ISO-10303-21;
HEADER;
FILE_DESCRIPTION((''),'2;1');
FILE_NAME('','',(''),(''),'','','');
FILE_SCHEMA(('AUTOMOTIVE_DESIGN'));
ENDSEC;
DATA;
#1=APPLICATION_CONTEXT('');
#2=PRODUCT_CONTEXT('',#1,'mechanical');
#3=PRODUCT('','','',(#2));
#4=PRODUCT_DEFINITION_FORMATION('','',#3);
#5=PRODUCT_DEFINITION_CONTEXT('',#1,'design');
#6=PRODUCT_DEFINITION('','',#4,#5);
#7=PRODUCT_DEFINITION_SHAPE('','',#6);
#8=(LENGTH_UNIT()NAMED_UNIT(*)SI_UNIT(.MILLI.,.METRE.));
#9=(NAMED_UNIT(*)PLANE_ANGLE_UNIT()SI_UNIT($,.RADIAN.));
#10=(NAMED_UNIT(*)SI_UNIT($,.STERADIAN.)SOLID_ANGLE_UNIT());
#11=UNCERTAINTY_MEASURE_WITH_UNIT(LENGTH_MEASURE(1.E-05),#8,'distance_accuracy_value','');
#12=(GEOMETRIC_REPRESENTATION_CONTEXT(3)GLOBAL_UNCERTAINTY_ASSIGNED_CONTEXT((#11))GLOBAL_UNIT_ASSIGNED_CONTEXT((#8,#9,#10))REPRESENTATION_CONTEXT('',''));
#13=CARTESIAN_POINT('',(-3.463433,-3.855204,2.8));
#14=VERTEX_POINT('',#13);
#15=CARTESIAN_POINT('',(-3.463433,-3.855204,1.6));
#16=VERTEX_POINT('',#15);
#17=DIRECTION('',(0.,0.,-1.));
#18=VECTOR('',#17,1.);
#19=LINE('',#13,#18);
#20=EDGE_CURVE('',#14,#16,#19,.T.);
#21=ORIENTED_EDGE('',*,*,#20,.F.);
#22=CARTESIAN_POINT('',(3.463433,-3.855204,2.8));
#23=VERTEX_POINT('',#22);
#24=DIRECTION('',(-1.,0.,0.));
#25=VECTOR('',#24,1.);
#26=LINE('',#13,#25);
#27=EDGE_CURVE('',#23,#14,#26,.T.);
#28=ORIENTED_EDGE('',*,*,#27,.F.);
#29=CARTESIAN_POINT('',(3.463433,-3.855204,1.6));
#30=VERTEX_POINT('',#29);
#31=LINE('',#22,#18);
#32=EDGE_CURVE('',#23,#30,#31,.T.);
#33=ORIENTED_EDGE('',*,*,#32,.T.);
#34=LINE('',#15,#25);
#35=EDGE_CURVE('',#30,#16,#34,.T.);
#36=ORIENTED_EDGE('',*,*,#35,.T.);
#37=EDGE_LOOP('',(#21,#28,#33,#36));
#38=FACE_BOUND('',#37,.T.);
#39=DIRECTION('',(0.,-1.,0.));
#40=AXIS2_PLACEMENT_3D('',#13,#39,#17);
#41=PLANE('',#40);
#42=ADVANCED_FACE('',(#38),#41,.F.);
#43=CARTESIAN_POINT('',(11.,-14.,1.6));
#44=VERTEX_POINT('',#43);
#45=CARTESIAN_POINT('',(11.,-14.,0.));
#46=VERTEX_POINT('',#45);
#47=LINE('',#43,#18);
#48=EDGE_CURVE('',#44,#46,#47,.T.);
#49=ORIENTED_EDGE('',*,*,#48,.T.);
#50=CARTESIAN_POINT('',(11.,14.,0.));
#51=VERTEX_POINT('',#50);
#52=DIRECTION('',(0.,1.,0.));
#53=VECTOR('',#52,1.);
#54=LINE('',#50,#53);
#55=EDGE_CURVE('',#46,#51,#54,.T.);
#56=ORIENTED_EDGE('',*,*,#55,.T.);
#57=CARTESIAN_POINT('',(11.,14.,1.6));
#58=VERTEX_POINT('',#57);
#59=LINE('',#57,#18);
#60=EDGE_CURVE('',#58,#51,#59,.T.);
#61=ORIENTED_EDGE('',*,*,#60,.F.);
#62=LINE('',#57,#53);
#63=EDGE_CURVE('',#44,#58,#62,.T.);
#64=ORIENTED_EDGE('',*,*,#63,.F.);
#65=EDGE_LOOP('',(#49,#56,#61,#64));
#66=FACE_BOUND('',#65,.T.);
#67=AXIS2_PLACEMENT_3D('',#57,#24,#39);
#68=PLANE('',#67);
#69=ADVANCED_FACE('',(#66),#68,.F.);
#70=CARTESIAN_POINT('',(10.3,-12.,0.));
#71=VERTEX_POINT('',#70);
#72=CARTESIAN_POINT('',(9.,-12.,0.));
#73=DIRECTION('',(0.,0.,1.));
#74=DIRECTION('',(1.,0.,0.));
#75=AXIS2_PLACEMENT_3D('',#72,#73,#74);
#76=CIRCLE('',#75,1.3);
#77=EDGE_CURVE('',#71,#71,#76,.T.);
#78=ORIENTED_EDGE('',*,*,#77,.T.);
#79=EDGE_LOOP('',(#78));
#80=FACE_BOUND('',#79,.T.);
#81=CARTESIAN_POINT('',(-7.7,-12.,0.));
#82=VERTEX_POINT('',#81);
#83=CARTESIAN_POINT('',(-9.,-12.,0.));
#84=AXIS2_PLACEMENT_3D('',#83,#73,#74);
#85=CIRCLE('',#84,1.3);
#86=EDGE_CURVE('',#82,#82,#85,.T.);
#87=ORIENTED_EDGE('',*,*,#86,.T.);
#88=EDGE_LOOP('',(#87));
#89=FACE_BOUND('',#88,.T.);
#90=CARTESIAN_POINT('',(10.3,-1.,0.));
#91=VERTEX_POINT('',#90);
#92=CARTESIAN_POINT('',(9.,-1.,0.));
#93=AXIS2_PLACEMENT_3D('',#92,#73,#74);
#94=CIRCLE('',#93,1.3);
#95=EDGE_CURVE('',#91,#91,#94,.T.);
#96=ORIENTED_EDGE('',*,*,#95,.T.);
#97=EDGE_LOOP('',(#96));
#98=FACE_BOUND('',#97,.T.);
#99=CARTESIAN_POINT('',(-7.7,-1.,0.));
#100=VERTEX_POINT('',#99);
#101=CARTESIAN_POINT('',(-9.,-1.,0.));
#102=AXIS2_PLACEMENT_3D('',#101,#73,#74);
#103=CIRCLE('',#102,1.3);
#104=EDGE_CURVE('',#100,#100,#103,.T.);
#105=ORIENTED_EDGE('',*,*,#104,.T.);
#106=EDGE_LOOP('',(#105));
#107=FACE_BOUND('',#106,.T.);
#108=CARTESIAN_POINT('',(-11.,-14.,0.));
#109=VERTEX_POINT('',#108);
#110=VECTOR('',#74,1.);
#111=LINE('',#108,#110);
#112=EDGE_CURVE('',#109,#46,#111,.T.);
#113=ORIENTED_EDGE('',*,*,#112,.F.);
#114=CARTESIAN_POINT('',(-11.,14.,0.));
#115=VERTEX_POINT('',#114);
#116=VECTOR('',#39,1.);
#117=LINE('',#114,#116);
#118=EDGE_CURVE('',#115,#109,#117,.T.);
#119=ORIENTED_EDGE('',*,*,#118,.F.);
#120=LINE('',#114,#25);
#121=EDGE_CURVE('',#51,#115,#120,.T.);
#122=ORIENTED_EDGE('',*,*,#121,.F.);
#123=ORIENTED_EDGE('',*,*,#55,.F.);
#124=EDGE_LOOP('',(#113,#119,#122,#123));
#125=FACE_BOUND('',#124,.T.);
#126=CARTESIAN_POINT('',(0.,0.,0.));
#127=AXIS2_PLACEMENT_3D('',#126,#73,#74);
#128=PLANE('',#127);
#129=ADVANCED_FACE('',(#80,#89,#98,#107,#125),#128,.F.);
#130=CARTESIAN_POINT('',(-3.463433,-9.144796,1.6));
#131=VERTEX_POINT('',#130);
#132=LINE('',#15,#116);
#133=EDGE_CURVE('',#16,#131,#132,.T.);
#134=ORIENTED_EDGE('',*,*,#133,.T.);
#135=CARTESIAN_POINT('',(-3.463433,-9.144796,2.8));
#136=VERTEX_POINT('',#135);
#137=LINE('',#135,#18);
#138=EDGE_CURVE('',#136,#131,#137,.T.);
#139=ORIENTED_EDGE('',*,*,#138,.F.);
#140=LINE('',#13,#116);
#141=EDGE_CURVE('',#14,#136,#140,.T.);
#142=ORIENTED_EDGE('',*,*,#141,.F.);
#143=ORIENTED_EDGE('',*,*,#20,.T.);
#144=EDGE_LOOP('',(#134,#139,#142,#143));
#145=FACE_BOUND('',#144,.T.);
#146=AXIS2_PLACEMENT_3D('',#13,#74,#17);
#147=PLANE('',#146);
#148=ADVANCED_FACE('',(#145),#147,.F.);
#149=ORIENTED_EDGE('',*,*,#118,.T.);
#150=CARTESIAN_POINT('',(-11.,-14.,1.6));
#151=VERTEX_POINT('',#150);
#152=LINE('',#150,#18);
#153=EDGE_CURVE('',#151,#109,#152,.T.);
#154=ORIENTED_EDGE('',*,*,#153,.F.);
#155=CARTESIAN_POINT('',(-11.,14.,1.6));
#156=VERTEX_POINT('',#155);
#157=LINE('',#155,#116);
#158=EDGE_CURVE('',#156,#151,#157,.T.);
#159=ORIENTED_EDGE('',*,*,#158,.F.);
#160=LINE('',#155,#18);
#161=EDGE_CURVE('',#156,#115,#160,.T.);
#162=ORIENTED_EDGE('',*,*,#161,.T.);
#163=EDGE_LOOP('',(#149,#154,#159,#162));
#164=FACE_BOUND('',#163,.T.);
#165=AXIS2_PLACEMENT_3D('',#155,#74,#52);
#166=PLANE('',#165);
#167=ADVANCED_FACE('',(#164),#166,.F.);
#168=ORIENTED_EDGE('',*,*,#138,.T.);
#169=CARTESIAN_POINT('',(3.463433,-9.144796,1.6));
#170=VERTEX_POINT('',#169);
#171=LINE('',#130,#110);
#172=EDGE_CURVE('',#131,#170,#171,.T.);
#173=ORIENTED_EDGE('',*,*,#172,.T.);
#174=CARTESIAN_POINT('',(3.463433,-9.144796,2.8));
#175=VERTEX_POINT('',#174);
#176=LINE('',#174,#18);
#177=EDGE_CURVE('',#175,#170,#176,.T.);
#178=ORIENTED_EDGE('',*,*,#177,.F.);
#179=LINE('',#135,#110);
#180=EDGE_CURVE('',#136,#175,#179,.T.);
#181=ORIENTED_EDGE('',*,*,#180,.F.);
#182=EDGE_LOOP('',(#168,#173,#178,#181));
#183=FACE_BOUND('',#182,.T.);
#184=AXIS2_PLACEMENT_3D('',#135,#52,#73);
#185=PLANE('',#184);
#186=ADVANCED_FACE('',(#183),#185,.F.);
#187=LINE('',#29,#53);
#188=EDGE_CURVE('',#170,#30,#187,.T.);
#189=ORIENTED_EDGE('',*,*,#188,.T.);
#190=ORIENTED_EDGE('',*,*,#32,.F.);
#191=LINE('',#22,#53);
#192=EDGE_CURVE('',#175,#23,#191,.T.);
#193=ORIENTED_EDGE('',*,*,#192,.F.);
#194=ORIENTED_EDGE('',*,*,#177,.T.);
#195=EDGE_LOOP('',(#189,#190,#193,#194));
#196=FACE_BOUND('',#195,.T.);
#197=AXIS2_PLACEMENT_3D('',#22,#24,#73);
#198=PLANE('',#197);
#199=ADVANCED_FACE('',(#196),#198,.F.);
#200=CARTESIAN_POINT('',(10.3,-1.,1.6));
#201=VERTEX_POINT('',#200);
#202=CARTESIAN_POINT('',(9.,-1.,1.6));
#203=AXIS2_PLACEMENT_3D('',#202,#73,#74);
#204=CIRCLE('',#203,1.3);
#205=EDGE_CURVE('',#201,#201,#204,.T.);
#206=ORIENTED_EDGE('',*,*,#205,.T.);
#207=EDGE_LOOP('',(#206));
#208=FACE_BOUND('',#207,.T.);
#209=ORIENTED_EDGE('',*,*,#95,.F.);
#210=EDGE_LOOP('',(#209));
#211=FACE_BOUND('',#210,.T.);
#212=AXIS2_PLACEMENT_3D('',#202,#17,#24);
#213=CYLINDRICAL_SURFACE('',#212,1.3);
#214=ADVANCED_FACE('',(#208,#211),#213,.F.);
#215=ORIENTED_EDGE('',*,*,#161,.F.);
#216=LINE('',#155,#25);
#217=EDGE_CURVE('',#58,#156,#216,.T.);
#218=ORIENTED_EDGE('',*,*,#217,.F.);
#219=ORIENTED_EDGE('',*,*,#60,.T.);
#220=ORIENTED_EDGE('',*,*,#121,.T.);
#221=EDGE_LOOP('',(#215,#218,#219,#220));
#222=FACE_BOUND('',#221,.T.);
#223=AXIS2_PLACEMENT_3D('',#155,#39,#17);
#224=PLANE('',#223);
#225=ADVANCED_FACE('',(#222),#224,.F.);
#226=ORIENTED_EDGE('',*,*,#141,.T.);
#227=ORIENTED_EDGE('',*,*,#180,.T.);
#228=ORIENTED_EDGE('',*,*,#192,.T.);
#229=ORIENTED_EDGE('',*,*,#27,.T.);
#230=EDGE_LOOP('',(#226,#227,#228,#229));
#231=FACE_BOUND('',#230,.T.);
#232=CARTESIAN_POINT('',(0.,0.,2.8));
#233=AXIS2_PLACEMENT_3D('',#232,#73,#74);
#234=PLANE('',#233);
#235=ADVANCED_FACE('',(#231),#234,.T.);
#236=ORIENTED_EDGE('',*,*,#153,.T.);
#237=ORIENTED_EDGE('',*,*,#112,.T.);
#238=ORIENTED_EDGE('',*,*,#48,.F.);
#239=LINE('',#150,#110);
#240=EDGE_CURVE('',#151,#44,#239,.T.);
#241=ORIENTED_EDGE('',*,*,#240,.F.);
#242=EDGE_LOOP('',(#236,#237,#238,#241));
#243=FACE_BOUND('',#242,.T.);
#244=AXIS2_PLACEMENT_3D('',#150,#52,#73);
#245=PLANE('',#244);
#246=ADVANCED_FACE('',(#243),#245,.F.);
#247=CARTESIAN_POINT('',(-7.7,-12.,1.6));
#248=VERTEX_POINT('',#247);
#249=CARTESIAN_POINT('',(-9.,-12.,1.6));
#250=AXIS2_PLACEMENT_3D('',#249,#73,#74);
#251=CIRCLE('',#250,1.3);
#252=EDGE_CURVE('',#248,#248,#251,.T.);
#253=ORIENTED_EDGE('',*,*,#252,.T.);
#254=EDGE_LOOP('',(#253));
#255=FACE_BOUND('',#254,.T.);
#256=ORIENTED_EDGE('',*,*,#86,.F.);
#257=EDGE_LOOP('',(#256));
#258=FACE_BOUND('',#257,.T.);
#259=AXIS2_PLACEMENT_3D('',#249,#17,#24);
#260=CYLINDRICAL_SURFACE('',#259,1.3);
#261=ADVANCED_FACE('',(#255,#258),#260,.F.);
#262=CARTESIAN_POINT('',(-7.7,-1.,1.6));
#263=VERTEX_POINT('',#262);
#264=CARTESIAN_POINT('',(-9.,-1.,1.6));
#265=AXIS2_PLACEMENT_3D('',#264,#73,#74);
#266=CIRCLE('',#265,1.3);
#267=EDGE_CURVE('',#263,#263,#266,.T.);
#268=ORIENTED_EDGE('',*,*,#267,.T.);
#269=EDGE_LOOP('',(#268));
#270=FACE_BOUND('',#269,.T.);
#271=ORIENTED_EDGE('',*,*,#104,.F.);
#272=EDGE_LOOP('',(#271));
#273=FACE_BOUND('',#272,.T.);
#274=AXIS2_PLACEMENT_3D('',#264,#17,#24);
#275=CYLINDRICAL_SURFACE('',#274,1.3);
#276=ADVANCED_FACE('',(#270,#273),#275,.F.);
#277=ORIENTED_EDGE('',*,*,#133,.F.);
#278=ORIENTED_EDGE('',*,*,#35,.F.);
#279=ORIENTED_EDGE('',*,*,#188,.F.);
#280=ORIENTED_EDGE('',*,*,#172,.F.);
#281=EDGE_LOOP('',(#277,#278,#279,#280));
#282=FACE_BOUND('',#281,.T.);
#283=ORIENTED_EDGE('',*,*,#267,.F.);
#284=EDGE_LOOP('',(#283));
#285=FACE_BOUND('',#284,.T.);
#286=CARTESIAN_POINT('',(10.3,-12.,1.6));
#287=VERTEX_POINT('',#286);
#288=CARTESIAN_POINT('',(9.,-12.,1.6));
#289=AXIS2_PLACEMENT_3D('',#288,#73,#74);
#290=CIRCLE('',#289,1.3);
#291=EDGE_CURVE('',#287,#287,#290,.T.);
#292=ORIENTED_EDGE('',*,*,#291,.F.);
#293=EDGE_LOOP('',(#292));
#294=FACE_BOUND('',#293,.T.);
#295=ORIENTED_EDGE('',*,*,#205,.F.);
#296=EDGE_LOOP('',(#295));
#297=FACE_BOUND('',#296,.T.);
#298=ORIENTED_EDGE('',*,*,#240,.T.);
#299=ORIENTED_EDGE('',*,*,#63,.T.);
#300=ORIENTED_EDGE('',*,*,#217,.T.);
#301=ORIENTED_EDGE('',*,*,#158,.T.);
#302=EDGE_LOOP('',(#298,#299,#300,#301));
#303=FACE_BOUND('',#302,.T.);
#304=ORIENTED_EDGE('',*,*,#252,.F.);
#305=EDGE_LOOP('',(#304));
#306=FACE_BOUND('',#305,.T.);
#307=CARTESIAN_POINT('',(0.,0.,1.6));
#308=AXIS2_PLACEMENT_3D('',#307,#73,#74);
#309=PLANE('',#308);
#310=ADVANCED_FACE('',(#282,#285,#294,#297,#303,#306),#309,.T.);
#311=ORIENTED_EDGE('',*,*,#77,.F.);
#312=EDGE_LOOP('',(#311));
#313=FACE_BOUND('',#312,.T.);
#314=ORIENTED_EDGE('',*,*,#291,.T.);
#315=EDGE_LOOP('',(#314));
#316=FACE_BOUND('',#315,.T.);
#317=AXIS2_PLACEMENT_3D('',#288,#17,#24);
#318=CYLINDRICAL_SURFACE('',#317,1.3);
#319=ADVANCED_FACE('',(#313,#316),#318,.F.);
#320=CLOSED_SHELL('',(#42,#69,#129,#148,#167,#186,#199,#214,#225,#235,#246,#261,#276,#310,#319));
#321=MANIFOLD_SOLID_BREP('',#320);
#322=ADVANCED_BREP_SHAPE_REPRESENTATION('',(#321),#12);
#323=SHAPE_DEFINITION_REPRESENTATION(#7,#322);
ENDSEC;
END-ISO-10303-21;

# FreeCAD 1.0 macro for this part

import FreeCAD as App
import Part
import Sketcher

V = App.Vector
Q = App.Units.Quantity


def add_polygon(sketch, points):
    """Adds a closed chain of lines whose ends are joined by coincident constraints."""
    first, n = sketch.GeometryCount, len(points)
    for a, b in zip(points, points[1:] + points[:1]):
        sketch.addGeometry(Part.LineSegment(App.Vector(*a, 0), App.Vector(*b, 0)), False)
    for i in range(n):
        sketch.addConstraint(Sketcher.Constraint("Coincident", first + i, 2, first + (i + 1) % n, 1))

doc = App.newDocument("Part")
body = doc.addObject("PartDesign::Body", "Body")

sketch1 = body.newObject("Sketcher::SketchObject", "Sketch")
sketch1.AttachmentSupport = (doc.getObject("XY_Plane"), [""])
sketch1.MapMode = "FlatFace"
add_polygon(sketch1, [(-11, 14), (-11, -14), (11, -14), (11, 14)])
sketch1.addGeometry(Part.Circle(V(-9, -12, 0), V(0, 0, 1), 1.3), False)
sketch1.addGeometry(Part.Circle(V(9, -12, 0), V(0, 0, 1), 1.3), False)
sketch1.addGeometry(Part.Circle(V(-9, -1, 0), V(0, 0, 1), 1.3), False)
sketch1.addGeometry(Part.Circle(V(9, -1, 0), V(0, 0, 1), 1.3), False)
sketch1.addConstraint([
    Sketcher.Constraint("Vertical", 0),
    Sketcher.Constraint("Horizontal", 1),
    Sketcher.Constraint("Vertical", 2),
    Sketcher.Constraint("Horizontal", 3),
    Sketcher.Constraint("Equal", 4, 5),
    Sketcher.Constraint("Equal", 5, 6),
    Sketcher.Constraint("Equal", 6, 7),
    Sketcher.Constraint("Symmetric", 0, 2, 2, 2, -1, 1),
    Sketcher.Constraint("Symmetric", 4, 3, 5, 3, -2),
    Sketcher.Constraint("Symmetric", 6, 3, 7, 3, -2),
    Sketcher.Constraint("Vertical", 4, 3, 6, 3),
    Sketcher.Constraint("Diameter", 4, Q("2.6 mm")),
    Sketcher.Constraint("DistanceX", 1, 1, 1, 2, Q("22 mm")),
    Sketcher.Constraint("DistanceY", 0, 2, 0, 1, Q("28 mm")),
    Sketcher.Constraint("DistanceX", 4, 3, -1, 1, Q("9 mm")),
    Sketcher.Constraint("DistanceY", 4, 3, -1, 1, Q("12 mm")),
    Sketcher.Constraint("DistanceY", 6, 3, -1, 1, Q("1 mm")),
])
pad1 = body.newObject("PartDesign::Pad", "Pad")
pad1.Profile = sketch1
pad1.Length = 1.6

sketch2 = body.newObject("Sketcher::SketchObject", "Sketch001")
sketch2.AttachmentSupport = (doc.getObject("XY_Plane"), [""])
sketch2.MapMode = "FlatFace"
sketch2.AttachmentOffset = App.Placement(V(0, 0, 1.6), App.Rotation())
add_polygon(sketch2, [(-3, -4), (-3, -9), (3, -9), (3, -4)])
sketch2.addConstraint([
    Sketcher.Constraint("Vertical", 0),
    Sketcher.Constraint("Horizontal", 1),
    Sketcher.Constraint("Vertical", 2),
    Sketcher.Constraint("Horizontal", 3),
    Sketcher.Constraint("DistanceX", 1, 1, 1, 2, Q("6.926867 mm")),
    Sketcher.Constraint("DistanceY", 0, 2, 0, 1, Q("5.289593 mm")),
    Sketcher.Constraint("DistanceX", 0, 2, -1, 1, Q("3.463433 mm")),
    Sketcher.Constraint("DistanceY", 0, 2, -1, 1, Q("9.144796 mm")),
])
pad2 = body.newObject("PartDesign::Pad", "Pad001")
pad2.Profile = sketch2
pad2.Length = 1.2

doc.recompute()
